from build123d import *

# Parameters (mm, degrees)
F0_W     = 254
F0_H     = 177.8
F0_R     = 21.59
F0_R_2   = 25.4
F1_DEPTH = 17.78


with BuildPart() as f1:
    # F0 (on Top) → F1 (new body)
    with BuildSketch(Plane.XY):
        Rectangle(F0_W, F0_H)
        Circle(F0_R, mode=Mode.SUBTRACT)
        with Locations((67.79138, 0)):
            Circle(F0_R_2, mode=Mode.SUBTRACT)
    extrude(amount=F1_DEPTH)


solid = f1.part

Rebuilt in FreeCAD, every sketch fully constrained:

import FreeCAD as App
import Part
import Sketcher
from FreeCAD import Vector
Q = App.Units.Quantity

doc = App.newDocument("Part")
body = doc.addObject("PartDesign::Body", "Body")

# Sketch on XY plane
sketch1 = doc.addObject("Sketcher::SketchObject", "Sketch")
body.addObject(sketch1)
sketch1.AttachmentSupport = (doc.XY_Plane, [""])
sketch1.MapMode = "FlatFace"
sketch1.addGeometry([
    Part.LineSegment(Vector(-127, 89, 0), Vector(-127, -89, 0)),  # 0
    Part.LineSegment(Vector(-127, -89, 0), Vector(127, -89, 0)),  # 1
    Part.LineSegment(Vector(127, -89, 0), Vector(127, 89, 0)),  # 2
    Part.LineSegment(Vector(127, 89, 0), Vector(-127, 89, 0)),  # 3
    Part.Circle(Vector(0, 0, 0), Vector(0, 0, 1), 22),  # 4
    Part.Circle(Vector(68, 0, 0), Vector(0, 0, 1), 25),  # 5
], False)
sketch1.addConstraint([
    Sketcher.Constraint("Coincident", 0, 2, 1, 1),
    Sketcher.Constraint("Coincident", 1, 2, 2, 1),
    Sketcher.Constraint("Coincident", 2, 2, 3, 1),
    Sketcher.Constraint("Coincident", 3, 2, 0, 1),
    Sketcher.Constraint("Vertical", 0),
    Sketcher.Constraint("Horizontal", 1),
    Sketcher.Constraint("Vertical", 2),
    Sketcher.Constraint("Horizontal", 3),
    Sketcher.Constraint("Coincident", 4, 3, -1, 1),
    Sketcher.Constraint("Symmetric", 0, 2, 2, 2, -1, 1),
    Sketcher.Constraint("PointOnObject", 5, 3, -1),
    Sketcher.Constraint("Diameter", 5, Q("2 in")),
    Sketcher.Constraint("Diameter", 4, Q("1.7 in")),
    Sketcher.Constraint("DistanceX", 1, 1, 1, 2, Q("10 in")),
    Sketcher.Constraint("DistanceY", 0, 2, 0, 1, Q("7 in")),
    Sketcher.Constraint("DistanceX", -1, 1, 5, 3, 67.79138),
])
pad1 = doc.addObject("PartDesign::Pad", "Pad")
body.addObject(pad1)
pad1.Profile = sketch1
pad1.Length = Q("0.7 in")

doc.recompute()
